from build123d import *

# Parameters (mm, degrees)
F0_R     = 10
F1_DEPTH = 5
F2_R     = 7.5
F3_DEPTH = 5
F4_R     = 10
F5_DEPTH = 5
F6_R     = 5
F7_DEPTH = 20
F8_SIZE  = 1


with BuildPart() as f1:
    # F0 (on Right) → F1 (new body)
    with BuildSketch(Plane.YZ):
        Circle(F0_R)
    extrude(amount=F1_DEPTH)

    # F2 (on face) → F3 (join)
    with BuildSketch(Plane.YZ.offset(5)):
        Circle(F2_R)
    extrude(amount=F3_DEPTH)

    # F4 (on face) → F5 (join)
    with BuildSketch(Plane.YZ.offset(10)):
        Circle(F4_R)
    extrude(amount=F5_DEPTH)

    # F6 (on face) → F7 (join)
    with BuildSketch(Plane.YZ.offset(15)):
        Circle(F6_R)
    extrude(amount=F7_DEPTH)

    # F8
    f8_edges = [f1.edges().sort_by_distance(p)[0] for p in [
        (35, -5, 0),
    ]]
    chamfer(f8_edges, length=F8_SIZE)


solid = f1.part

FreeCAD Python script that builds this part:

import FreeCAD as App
import Part
import Sketcher


def edges_at(feature, points):
    """Names of the edges that pass closest to the given points."""
    edges = feature.Shape.Edges
    near = lambda p: min(range(len(edges)), key=lambda i: edges[i].distToShape(Part.Vertex(*p))[0])
    return sorted({f"Edge{near(p) + 1}" for p in points})

doc = App.newDocument("Part")
body = doc.addObject("PartDesign::Body", "Body")

# Sketch on YZ plane
sketch1 = body.newObject("Sketcher::SketchObject", "Sketch")
sketch1.AttachmentSupport = (doc.getObject("YZ_Plane"), [""])
sketch1.MapMode = "FlatFace"
sketch1.addGeometry(Part.Circle(App.Vector(0, 0, 0), App.Vector(0, 0, 1), 10), False)
sketch1.addConstraint(Sketcher.Constraint("Coincident", 0, 3, -1, 1))
sketch1.addConstraint(Sketcher.Constraint("Diameter", 0, 20.0))
pad1 = body.newObject("PartDesign::Pad", "Pad")
pad1.Profile = sketch1
pad1.Length = 5

# Sketch on YZ plane
sketch2 = body.newObject("Sketcher::SketchObject", "Sketch001")
sketch2.AttachmentSupport = (doc.getObject("YZ_Plane"), [""])
sketch2.MapMode = "FlatFace"
sketch2.AttachmentOffset = App.Placement(App.Vector(0, 0, 5), App.Rotation())
sketch2.addGeometry(Part.Circle(App.Vector(0, 0, 0), App.Vector(0, 0, 1), 8), False)
sketch2.addConstraint(Sketcher.Constraint("Coincident", 0, 3, -1, 1))
sketch2.addConstraint(Sketcher.Constraint("Diameter", 0, 15.0))
pad2 = body.newObject("PartDesign::Pad", "Pad001")
pad2.Profile = sketch2
pad2.Length = 5

# Sketch on YZ plane
sketch3 = body.newObject("Sketcher::SketchObject", "Sketch002")
sketch3.AttachmentSupport = (doc.getObject("YZ_Plane"), [""])
sketch3.MapMode = "FlatFace"
sketch3.AttachmentOffset = App.Placement(App.Vector(0, 0, 10), App.Rotation())
sketch3.addGeometry(Part.Circle(App.Vector(0, 0, 0), App.Vector(0, 0, 1), 10), False)
sketch3.addConstraint(Sketcher.Constraint("Coincident", 0, 3, -1, 1))
sketch3.addConstraint(Sketcher.Constraint("Diameter", 0, 20.0))
pad3 = body.newObject("PartDesign::Pad", "Pad002")
pad3.Profile = sketch3
pad3.Length = 5

# Sketch on YZ plane
sketch4 = body.newObject("Sketcher::SketchObject", "Sketch003")
sketch4.AttachmentSupport = (doc.getObject("YZ_Plane"), [""])
sketch4.MapMode = "FlatFace"
sketch4.AttachmentOffset = App.Placement(App.Vector(0, 0, 15), App.Rotation())
sketch4.addGeometry(Part.Circle(App.Vector(0, 0, 0), App.Vector(0, 0, 1), 5), False)
sketch4.addConstraint(Sketcher.Constraint("Coincident", 0, 3, -1, 1))
sketch4.addConstraint(Sketcher.Constraint("Diameter", 0, 10.0))
pad4 = body.newObject("PartDesign::Pad", "Pad003")
pad4.Profile = sketch4
pad4.Length = 20
doc.recompute()

chamfer = body.newObject("PartDesign::Chamfer", "Chamfer")
chamfer.Base = (pad4, edges_at(pad4, [(35, -5, 0)]))
chamfer.Size = 1

doc.recompute()
